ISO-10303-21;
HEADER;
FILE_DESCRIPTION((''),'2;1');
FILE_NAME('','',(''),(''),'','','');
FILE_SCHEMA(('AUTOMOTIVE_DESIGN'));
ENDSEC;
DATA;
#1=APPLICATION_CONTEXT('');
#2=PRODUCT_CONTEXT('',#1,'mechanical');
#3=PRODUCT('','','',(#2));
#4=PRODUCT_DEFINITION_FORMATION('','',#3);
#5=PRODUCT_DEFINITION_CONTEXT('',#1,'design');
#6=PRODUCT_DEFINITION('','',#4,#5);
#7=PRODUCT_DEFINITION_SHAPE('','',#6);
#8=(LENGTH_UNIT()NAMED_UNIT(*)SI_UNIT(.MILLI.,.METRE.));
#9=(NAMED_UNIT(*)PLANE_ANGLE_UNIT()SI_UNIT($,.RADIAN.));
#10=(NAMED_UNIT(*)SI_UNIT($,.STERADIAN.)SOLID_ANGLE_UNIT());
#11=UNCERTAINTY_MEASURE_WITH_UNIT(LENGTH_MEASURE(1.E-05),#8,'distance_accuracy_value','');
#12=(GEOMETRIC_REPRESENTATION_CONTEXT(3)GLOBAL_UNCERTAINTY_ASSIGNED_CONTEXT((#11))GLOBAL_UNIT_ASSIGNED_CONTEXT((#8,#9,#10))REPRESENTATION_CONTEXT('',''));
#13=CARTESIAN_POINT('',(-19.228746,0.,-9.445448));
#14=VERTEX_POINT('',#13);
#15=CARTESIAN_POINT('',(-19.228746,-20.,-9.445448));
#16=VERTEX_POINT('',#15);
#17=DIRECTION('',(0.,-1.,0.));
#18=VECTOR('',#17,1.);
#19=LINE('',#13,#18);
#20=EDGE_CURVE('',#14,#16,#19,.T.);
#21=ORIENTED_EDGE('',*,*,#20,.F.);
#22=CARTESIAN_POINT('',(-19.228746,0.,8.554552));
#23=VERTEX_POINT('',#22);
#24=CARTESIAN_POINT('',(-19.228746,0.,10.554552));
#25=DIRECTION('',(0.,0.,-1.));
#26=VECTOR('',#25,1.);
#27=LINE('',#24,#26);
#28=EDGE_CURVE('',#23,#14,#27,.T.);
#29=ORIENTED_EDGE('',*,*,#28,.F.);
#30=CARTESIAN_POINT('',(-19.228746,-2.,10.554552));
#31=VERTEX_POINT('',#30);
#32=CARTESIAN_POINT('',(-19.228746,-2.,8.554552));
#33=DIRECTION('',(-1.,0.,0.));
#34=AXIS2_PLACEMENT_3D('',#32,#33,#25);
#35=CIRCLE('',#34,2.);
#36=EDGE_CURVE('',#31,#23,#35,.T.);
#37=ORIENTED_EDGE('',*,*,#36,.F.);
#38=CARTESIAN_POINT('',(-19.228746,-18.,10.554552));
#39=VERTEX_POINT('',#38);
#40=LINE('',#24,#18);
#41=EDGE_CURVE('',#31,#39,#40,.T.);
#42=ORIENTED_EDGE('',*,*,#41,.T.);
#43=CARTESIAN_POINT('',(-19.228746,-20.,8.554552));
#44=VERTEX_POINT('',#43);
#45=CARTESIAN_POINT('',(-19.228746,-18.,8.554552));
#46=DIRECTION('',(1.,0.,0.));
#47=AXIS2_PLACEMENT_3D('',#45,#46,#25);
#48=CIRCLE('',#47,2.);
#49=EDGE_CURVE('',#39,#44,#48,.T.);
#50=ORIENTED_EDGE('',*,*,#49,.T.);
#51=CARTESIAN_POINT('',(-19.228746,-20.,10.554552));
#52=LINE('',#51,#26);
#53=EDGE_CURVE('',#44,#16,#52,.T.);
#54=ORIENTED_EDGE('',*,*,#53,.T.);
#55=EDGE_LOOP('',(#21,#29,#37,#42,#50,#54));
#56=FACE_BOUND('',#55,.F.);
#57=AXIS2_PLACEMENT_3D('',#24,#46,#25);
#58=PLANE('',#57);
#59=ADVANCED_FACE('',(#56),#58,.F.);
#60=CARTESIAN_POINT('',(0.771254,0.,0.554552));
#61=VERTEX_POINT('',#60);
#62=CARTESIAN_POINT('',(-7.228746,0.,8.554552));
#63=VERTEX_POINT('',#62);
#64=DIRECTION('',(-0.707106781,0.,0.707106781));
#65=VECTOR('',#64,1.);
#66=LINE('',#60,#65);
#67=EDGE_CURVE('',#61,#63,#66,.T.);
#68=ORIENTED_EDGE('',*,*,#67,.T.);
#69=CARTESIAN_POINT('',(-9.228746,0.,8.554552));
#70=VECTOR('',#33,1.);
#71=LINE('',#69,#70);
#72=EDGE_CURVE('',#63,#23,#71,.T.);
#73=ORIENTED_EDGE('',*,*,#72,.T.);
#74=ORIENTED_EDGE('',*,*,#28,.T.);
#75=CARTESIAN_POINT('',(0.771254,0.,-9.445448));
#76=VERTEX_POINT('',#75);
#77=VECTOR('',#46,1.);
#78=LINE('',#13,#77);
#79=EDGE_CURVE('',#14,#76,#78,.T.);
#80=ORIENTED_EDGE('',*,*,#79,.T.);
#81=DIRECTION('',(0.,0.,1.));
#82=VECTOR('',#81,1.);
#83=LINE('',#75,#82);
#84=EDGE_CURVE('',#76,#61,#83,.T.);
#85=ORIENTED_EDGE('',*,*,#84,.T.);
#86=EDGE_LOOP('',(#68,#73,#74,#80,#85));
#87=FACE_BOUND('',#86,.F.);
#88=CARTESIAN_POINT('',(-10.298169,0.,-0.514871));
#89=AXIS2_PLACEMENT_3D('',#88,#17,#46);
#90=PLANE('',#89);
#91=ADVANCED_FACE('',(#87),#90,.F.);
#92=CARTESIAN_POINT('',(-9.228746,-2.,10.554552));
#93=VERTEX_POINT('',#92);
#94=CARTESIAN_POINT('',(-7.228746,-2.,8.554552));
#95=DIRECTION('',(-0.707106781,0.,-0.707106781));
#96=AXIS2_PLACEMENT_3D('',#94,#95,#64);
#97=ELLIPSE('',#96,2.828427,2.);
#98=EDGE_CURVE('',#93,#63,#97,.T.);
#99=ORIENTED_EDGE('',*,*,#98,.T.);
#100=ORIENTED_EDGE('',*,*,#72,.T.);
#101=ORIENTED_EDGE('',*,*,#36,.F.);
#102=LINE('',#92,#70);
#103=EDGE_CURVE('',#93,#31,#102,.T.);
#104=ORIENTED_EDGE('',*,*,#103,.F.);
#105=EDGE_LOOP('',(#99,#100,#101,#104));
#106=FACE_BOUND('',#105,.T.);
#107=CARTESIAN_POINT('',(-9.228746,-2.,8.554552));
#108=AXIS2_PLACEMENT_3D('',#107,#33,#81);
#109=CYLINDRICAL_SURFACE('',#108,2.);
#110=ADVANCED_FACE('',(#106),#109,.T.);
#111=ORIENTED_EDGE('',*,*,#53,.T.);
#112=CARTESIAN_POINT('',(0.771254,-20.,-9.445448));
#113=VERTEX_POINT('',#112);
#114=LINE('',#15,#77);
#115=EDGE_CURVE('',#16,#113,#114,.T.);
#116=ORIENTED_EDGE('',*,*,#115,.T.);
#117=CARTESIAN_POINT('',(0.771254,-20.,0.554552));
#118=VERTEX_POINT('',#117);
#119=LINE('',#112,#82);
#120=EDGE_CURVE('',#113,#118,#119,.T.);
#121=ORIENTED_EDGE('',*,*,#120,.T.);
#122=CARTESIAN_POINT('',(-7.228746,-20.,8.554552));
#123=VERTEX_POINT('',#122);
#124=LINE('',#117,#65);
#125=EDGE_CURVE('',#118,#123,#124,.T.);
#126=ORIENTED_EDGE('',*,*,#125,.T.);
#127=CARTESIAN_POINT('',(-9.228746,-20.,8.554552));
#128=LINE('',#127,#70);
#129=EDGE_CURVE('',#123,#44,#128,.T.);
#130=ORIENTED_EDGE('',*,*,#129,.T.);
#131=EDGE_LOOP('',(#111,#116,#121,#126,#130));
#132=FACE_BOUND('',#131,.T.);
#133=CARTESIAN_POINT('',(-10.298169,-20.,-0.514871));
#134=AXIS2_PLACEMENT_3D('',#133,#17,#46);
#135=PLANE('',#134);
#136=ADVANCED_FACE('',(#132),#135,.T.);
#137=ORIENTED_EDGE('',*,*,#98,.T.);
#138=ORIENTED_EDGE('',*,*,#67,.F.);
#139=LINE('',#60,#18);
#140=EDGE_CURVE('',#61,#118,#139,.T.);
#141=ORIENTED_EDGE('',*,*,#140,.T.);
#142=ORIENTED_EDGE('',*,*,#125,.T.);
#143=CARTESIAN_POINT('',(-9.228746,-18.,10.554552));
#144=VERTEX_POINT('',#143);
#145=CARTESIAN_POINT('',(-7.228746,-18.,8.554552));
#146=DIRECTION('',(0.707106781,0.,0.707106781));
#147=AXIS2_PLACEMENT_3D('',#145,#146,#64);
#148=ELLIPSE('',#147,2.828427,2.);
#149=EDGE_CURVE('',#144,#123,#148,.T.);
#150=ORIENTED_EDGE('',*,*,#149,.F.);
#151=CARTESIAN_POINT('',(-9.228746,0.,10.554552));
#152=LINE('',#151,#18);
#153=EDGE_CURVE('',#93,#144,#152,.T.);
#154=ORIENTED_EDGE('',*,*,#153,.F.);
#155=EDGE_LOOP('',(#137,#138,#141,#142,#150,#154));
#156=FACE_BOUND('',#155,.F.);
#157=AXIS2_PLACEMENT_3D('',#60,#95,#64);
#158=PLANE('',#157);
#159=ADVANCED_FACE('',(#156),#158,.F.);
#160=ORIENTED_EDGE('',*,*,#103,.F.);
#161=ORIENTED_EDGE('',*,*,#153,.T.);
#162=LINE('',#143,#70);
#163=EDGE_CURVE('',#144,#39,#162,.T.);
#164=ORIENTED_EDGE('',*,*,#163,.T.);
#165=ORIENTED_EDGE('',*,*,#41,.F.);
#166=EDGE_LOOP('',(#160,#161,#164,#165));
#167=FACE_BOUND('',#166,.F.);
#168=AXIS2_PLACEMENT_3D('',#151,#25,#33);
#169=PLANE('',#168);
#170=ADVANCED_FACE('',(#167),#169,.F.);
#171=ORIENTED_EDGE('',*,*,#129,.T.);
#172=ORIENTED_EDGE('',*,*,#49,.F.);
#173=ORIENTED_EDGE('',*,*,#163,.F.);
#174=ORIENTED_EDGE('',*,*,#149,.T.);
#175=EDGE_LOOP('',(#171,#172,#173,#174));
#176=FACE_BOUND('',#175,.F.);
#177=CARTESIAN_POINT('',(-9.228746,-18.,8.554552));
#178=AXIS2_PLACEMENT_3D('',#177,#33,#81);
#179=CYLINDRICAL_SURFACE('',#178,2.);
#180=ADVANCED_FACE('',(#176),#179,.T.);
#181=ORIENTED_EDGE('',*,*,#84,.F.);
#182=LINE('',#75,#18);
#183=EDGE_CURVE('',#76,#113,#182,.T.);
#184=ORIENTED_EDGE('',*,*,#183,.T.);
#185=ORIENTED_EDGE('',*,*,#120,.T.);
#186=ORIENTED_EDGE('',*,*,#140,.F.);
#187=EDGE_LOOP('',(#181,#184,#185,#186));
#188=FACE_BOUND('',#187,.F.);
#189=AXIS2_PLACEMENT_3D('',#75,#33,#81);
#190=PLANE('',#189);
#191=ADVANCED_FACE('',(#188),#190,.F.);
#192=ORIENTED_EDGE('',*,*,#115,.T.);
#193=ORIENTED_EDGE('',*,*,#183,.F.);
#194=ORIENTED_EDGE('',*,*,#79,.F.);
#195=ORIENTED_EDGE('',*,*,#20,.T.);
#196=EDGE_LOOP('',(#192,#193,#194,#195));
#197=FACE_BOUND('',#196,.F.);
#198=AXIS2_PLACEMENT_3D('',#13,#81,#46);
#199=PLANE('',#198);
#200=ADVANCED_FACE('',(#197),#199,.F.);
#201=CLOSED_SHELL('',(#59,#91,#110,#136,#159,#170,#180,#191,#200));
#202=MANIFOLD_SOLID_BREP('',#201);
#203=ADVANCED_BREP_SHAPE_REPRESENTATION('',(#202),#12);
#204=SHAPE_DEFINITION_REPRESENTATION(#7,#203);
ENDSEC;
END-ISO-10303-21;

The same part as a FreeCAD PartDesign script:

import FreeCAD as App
import Part
import Sketcher

V = App.Vector
Q = App.Units.Quantity


def edges_at(feature, points):
    """Names of the edges that pass closest to the given points."""
    edges = feature.Shape.Edges
    near = lambda p: min(range(len(edges)), key=lambda i: edges[i].distToShape(Part.Vertex(*p))[0])
    return sorted({f"Edge{near(p) + 1}" for p in points})

doc = App.newDocument("Part")
body = doc.addObject("PartDesign::Body", "Body")

# Sketch on XZ plane
sketch1 = body.newObject("Sketcher::SketchObject", "Sketch")
sketch1.AttachmentSupport = (doc.getObject("XZ_Plane"), [""])
sketch1.MapMode = "FlatFace"
sketch1.addGeometry(Part.LineSegment(V(-19.228746, -9.445448, 0), V(0.771254, -9.445448, 0)), False)
sketch1.addGeometry(Part.LineSegment(V(0.771254, -9.445448, 0), V(0.771254, 0.554552, 0)), False)
sketch1.addGeometry(Part.LineSegment(V(0.771254, 0.554552, 0), V(-9.228746, 10.554552, 0)), False)
sketch1.addGeometry(Part.LineSegment(V(-9.228746, 10.554552, 0), V(-19.228746, 10.554552, 0)), False)
sketch1.addGeometry(Part.LineSegment(V(-19.228746, 10.554552, 0), V(-19.228746, -9.445448, 0)), False)
sketch1.addConstraint(Sketcher.Constraint("Coincident", 0, 2, 1, 1))
sketch1.addConstraint(Sketcher.Constraint("Coincident", 1, 2, 2, 1))
sketch1.addConstraint(Sketcher.Constraint("Coincident", 2, 2, 3, 1))
sketch1.addConstraint(Sketcher.Constraint("Coincident", 3, 2, 4, 1))
sketch1.addConstraint(Sketcher.Constraint("Coincident", 4, 2, 0, 1))
sketch1.addConstraint(Sketcher.Constraint("Horizontal", 0))
sketch1.addConstraint(Sketcher.Constraint("Vertical", 1))
sketch1.addConstraint(Sketcher.Constraint("Horizontal", 3))
sketch1.addConstraint(Sketcher.Constraint("Vertical", 4))
sketch1.addConstraint(Sketcher.Constraint("Equal", 3, 1))
sketch1.addConstraint(Sketcher.Constraint("Equal", 0, 4))
sketch1.addConstraint(Sketcher.Constraint("DistanceX", 0, 1, 0, 2, Q("20 mm")))
sketch1.addConstraint(Sketcher.Constraint("DistanceX", 3, 2, 3, 1, Q("10 mm")))
sketch1.addConstraint(Sketcher.Constraint("DistanceY", 0, 2, -1, 1, Q("9.445448 mm")))
sketch1.addConstraint(Sketcher.Constraint("DistanceX", -1, 1, 0, 2, Q("0.771254 mm")))
pad1 = body.newObject("PartDesign::Pad", "Pad")
pad1.Profile = sketch1
pad1.Length = 20
doc.recompute()

fillet = body.newObject("PartDesign::Fillet", "Fillet")
fillet.Base = (pad1, edges_at(pad1, [(-14.229, 0, 10.555), (-14.229, -20, 10.555)]))
fillet.Radius = 2

doc.recompute()
